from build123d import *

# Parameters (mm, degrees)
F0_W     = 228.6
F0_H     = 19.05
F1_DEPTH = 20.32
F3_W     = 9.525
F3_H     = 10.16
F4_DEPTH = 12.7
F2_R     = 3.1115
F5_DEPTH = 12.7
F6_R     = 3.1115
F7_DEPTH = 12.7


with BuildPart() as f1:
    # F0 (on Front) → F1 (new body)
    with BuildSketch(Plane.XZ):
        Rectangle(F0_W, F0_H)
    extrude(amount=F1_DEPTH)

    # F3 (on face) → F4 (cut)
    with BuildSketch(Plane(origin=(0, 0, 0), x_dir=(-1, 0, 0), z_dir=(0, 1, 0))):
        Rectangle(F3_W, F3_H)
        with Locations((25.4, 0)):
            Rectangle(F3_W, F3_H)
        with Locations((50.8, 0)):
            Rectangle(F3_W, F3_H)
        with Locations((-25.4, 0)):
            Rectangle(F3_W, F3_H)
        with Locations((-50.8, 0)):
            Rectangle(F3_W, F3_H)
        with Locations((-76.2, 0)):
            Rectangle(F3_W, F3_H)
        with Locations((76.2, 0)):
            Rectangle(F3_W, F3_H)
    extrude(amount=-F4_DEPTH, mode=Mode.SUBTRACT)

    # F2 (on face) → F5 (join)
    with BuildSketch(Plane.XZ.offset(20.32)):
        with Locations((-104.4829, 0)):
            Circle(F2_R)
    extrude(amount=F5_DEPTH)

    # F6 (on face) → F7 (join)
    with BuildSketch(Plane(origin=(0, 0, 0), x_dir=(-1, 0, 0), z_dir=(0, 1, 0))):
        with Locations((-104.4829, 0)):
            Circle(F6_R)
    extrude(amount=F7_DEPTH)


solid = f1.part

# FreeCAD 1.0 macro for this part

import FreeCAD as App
import Part
import Sketcher
from FreeCAD import Vector
Q = App.Units.Quantity

doc = App.newDocument("Part")
params = doc.addObject("Spreadsheet::Sheet", "Params")
for row, (alias, value) in enumerate([
    ("sketch1_width", "9 in"),
    ("sketch1_height", "0.75 in"),
    ("pad1_length", "0.8 in"),
    ("sketch2_height", "0.4 in"),
    ("sketch2_width", "0.375 in"),
    ("pocket1_length", "0.5 in"),
    ("sketch3_diameter", "0.245 in"),
    ("pad2_length", "0.5 in"),
    ("sketch4_diameter", "0.245 in"),
    ("pad3_length", "0.5 in"),
], start=1):
    params.set(f"A{row}", alias)
    params.set(f"B{row}", "=" + value)
    params.setAlias(f"B{row}", alias)

body = doc.addObject("PartDesign::Body", "Body")

sketch1 = body.newObject("Sketcher::SketchObject", "Sketch")
sketch1.AttachmentSupport = (doc.getObject("XZ_Plane"), [""])
sketch1.MapMode = "FlatFace"
sketch1.addGeometry(Part.LineSegment(Vector(-114, 10, 0), Vector(-114, -10, 0)), False)
sketch1.addGeometry(Part.LineSegment(Vector(-114, -10, 0), Vector(114, -10, 0)), False)
sketch1.addGeometry(Part.LineSegment(Vector(114, -10, 0), Vector(114, 10, 0)), False)
sketch1.addGeometry(Part.LineSegment(Vector(114, 10, 0), Vector(-114, 10, 0)), False)
sketch1.addConstraint(Sketcher.Constraint("Coincident", 0, 2, 1, 1))
sketch1.addConstraint(Sketcher.Constraint("Coincident", 1, 2, 2, 1))
sketch1.addConstraint(Sketcher.Constraint("Coincident", 2, 2, 3, 1))
sketch1.addConstraint(Sketcher.Constraint("Coincident", 3, 2, 0, 1))
sketch1.addConstraint(Sketcher.Constraint("Vertical", 0))
sketch1.addConstraint(Sketcher.Constraint("Horizontal", 1))
sketch1.addConstraint(Sketcher.Constraint("Vertical", 2))
sketch1.addConstraint(Sketcher.Constraint("Horizontal", 3))
sketch1.addConstraint(Sketcher.Constraint("Symmetric", 0, 2, 2, 2, -1, 1))
sketch1.addConstraint(Sketcher.Constraint("DistanceX", 1, 1, 1, 2, Q("9 in")))
sketch1.addConstraint(Sketcher.Constraint("DistanceY", 0, 2, 0, 1, Q("0.75 in")))
sketch1.setExpression("Constraints[9]", "Params.sketch1_width")
sketch1.setExpression("Constraints[10]", "Params.sketch1_height")
pad1 = body.newObject("PartDesign::Pad", "Pad")
pad1.Profile = sketch1
pad1.setExpression("Length", "Params.pad1_length")

sketch2 = body.newObject("Sketcher::SketchObject", "Sketch001")
sketch2.AttachmentSupport = (doc.getObject("XZ_Plane"), [""])
sketch2.MapMode = "FlatFace"
sketch2.addGeometry(Part.LineSegment(Vector(5, 5, 0), Vector(5, -5, 0)), False)
sketch2.addGeometry(Part.LineSegment(Vector(5, -5, 0), Vector(-5, -5, 0)), False)
sketch2.addGeometry(Part.LineSegment(Vector(-5, -5, 0), Vector(-5, 5, 0)), False)
sketch2.addGeometry(Part.LineSegment(Vector(-5, 5, 0), Vector(5, 5, 0)), False)
sketch2.addGeometry(Part.LineSegment(Vector(-21, 5, 0), Vector(-21, -5, 0)), False)
sketch2.addGeometry(Part.LineSegment(Vector(-21, -5, 0), Vector(-30, -5, 0)), False)
sketch2.addGeometry(Part.LineSegment(Vector(-30, -5, 0), Vector(-30, 5, 0)), False)
sketch2.addGeometry(Part.LineSegment(Vector(-30, 5, 0), Vector(-21, 5, 0)), False)
sketch2.addGeometry(Part.LineSegment(Vector(-46, 5, 0), Vector(-46, -5, 0)), False)
sketch2.addGeometry(Part.LineSegment(Vector(-46, -5, 0), Vector(-56, -5, 0)), False)
sketch2.addGeometry(Part.LineSegment(Vector(-56, -5, 0), Vector(-56, 5, 0)), False)
sketch2.addGeometry(Part.LineSegment(Vector(-56, 5, 0), Vector(-46, 5, 0)), False)
sketch2.addGeometry(Part.LineSegment(Vector(30, 5, 0), Vector(30, -5, 0)), False)
sketch2.addGeometry(Part.LineSegment(Vector(30, -5, 0), Vector(21, -5, 0)), False)
sketch2.addGeometry(Part.LineSegment(Vector(21, -5, 0), Vector(21, 5, 0)), False)
sketch2.addGeometry(Part.LineSegment(Vector(21, 5, 0), Vector(30, 5, 0)), False)
sketch2.addGeometry(Part.LineSegment(Vector(56, 5, 0), Vector(56, -5, 0)), False)
sketch2.addGeometry(Part.LineSegment(Vector(56, -5, 0), Vector(46, -5, 0)), False)
sketch2.addGeometry(Part.LineSegment(Vector(46, -5, 0), Vector(46, 5, 0)), False)
sketch2.addGeometry(Part.LineSegment(Vector(46, 5, 0), Vector(56, 5, 0)), False)
sketch2.addGeometry(Part.LineSegment(Vector(81, 5, 0), Vector(81, -5, 0)), False)
sketch2.addGeometry(Part.LineSegment(Vector(81, -5, 0), Vector(71, -5, 0)), False)
sketch2.addGeometry(Part.LineSegment(Vector(71, -5, 0), Vector(71, 5, 0)), False)
sketch2.addGeometry(Part.LineSegment(Vector(71, 5, 0), Vector(81, 5, 0)), False)
sketch2.addGeometry(Part.LineSegment(Vector(-71, 5, 0), Vector(-71, -5, 0)), False)
sketch2.addGeometry(Part.LineSegment(Vector(-71, -5, 0), Vector(-81, -5, 0)), False)
sketch2.addGeometry(Part.LineSegment(Vector(-81, -5, 0), Vector(-81, 5, 0)), False)
sketch2.addGeometry(Part.LineSegment(Vector(-81, 5, 0), Vector(-71, 5, 0)), False)
sketch2.addConstraint(Sketcher.Constraint("Coincident", 0, 2, 1, 1))
sketch2.addConstraint(Sketcher.Constraint("Coincident", 1, 2, 2, 1))
sketch2.addConstraint(Sketcher.Constraint("Coincident", 2, 2, 3, 1))
sketch2.addConstraint(Sketcher.Constraint("Coincident", 3, 2, 0, 1))
sketch2.addConstraint(Sketcher.Constraint("Coincident", 4, 2, 5, 1))
sketch2.addConstraint(Sketcher.Constraint("Coincident", 5, 2, 6, 1))
sketch2.addConstraint(Sketcher.Constraint("Coincident", 6, 2, 7, 1))
sketch2.addConstraint(Sketcher.Constraint("Coincident", 7, 2, 4, 1))
sketch2.addConstraint(Sketcher.Constraint("Coincident", 8, 2, 9, 1))
sketch2.addConstraint(Sketcher.Constraint("Coincident", 9, 2, 10, 1))
sketch2.addConstraint(Sketcher.Constraint("Coincident", 10, 2, 11, 1))
sketch2.addConstraint(Sketcher.Constraint("Coincident", 11, 2, 8, 1))
sketch2.addConstraint(Sketcher.Constraint("Coincident", 12, 2, 13, 1))
sketch2.addConstraint(Sketcher.Constraint("Coincident", 13, 2, 14, 1))
sketch2.addConstraint(Sketcher.Constraint("Coincident", 14, 2, 15, 1))
sketch2.addConstraint(Sketcher.Constraint("Coincident", 15, 2, 12, 1))
sketch2.addConstraint(Sketcher.Constraint("Coincident", 16, 2, 17, 1))
sketch2.addConstraint(Sketcher.Constraint("Coincident", 17, 2, 18, 1))
sketch2.addConstraint(Sketcher.Constraint("Coincident", 18, 2, 19, 1))
sketch2.addConstraint(Sketcher.Constraint("Coincident", 19, 2, 16, 1))
sketch2.addConstraint(Sketcher.Constraint("Coincident", 20, 2, 21, 1))
sketch2.addConstraint(Sketcher.Constraint("Coincident", 21, 2, 22, 1))
sketch2.addConstraint(Sketcher.Constraint("Coincident", 22, 2, 23, 1))
sketch2.addConstraint(Sketcher.Constraint("Coincident", 23, 2, 20, 1))
sketch2.addConstraint(Sketcher.Constraint("Coincident", 24, 2, 25, 1))
sketch2.addConstraint(Sketcher.Constraint("Coincident", 25, 2, 26, 1))
sketch2.addConstraint(Sketcher.Constraint("Coincident", 26, 2, 27, 1))
sketch2.addConstraint(Sketcher.Constraint("Coincident", 27, 2, 24, 1))
sketch2.addConstraint(Sketcher.Constraint("Vertical", 0))
sketch2.addConstraint(Sketcher.Constraint("Horizontal", 1))
sketch2.addConstraint(Sketcher.Constraint("Vertical", 2))
sketch2.addConstraint(Sketcher.Constraint("Horizontal", 3))
sketch2.addConstraint(Sketcher.Constraint("Vertical", 4))
sketch2.addConstraint(Sketcher.Constraint("Horizontal", 5))
sketch2.addConstraint(Sketcher.Constraint("Vertical", 6))
sketch2.addConstraint(Sketcher.Constraint("Horizontal", 7))
sketch2.addConstraint(Sketcher.Constraint("Vertical", 8))
sketch2.addConstraint(Sketcher.Constraint("Horizontal", 9))
sketch2.addConstraint(Sketcher.Constraint("Vertical", 10))
sketch2.addConstraint(Sketcher.Constraint("Horizontal", 11))
sketch2.addConstraint(Sketcher.Constraint("Vertical", 12))
sketch2.addConstraint(Sketcher.Constraint("Horizontal", 13))
sketch2.addConstraint(Sketcher.Constraint("Vertical", 14))
sketch2.addConstraint(Sketcher.Constraint("Horizontal", 15))
sketch2.addConstraint(Sketcher.Constraint("Vertical", 16))
sketch2.addConstraint(Sketcher.Constraint("Horizontal", 17))
sketch2.addConstraint(Sketcher.Constraint("Vertical", 18))
sketch2.addConstraint(Sketcher.Constraint("Horizontal", 19))
sketch2.addConstraint(Sketcher.Constraint("Vertical", 20))
sketch2.addConstraint(Sketcher.Constraint("Horizontal", 21))
sketch2.addConstraint(Sketcher.Constraint("Vertical", 22))
sketch2.addConstraint(Sketcher.Constraint("Horizontal", 23))
sketch2.addConstraint(Sketcher.Constraint("Vertical", 24))
sketch2.addConstraint(Sketcher.Constraint("Horizontal", 25))
sketch2.addConstraint(Sketcher.Constraint("Vertical", 26))
sketch2.addConstraint(Sketcher.Constraint("Horizontal", 27))
sketch2.addConstraint(Sketcher.Constraint("Symmetric", 0, 2, 2, 2, -1, 1))
sketch2.addConstraint(Sketcher.Constraint("Symmetric", 6, 2, 12, 2, -1, 1))
sketch2.addConstraint(Sketcher.Constraint("Symmetric", 4, 2, 14, 2, -1, 1))
sketch2.addConstraint(Sketcher.Constraint("Symmetric", 10, 2, 16, 2, -1, 1))
sketch2.addConstraint(Sketcher.Constraint("Symmetric", 8, 2, 18, 2, -1, 1))
sketch2.addConstraint(Sketcher.Constraint("Symmetric", 22, 2, 24, 2, -1, 1))
sketch2.addConstraint(Sketcher.Constraint("Symmetric", 20, 2, 26, 2, -1, 1))
sketch2.addConstraint(Sketcher.Constraint("Horizontal", 1, 2, 4, 2))
sketch2.addConstraint(Sketcher.Constraint("Horizontal", 3, 2, 6, 2))
sketch2.addConstraint(Sketcher.Constraint("Horizontal", 5, 2, 8, 2))
sketch2.addConstraint(Sketcher.Constraint("Horizontal", 7, 2, 10, 2))
sketch2.addConstraint(Sketcher.Constraint("Horizontal", 17, 2, 20, 2))
sketch2.addConstraint(Sketcher.Constraint("Horizontal", 19, 2, 22, 2))
sketch2.addConstraint(Sketcher.Constraint("Equal", 3, 5))
sketch2.addConstraint(Sketcher.Constraint("Equal", 7, 9))
sketch2.addConstraint(Sketcher.Constraint("Equal", 19, 21))
sketch2.addConstraint(Sketcher.Constraint("DistanceY", 0, 2, 0, 1, Q("0.4 in")))
sketch2.addConstraint(Sketcher.Constraint("DistanceX", 4, 2, 0, 2, Q("1 in")))
sketch2.addConstraint(Sketcher.Constraint("DistanceX", 8, 2, 4, 2, Q("1 in")))
sketch2.addConstraint(Sketcher.Constraint("DistanceX", 16, 2, 20, 2, Q("1 in")))
sketch2.addConstraint(Sketcher.Constraint("DistanceX", 1, 2, 1, 1, Q("0.375 in")))
sketch2.setExpression("Constraints[72]", "Params.sketch2_height")
sketch2.setExpression("Constraints[76]", "Params.sketch2_width")
pocket1 = body.newObject("PartDesign::Pocket", "Pocket")
pocket1.Profile = sketch2
pocket1.setExpression("Length", "Params.pocket1_length")
pocket1.Reversed = True

sketch3 = body.newObject("Sketcher::SketchObject", "Sketch002")
sketch3.AttachmentSupport = (doc.getObject("XZ_Plane"), [""])
sketch3.MapMode = "FlatFace"
sketch3.AttachmentOffset = App.Placement(Vector(0, 0, 0.8 * 25.4), App.Rotation())
sketch3.addGeometry(Part.Circle(Vector(-104.5, 0, 0), Vector(0, 0, 1), 3.1), False)
sketch3.addConstraint(Sketcher.Constraint("PointOnObject", 0, 3, -1))
sketch3.addConstraint(Sketcher.Constraint("Diameter", 0, Q("0.245 in")))
sketch3.addConstraint(Sketcher.Constraint("DistanceX", 0, 3, -1, 1, Q("4.1135 in")))
sketch3.setExpression("Constraints[1]", "Params.sketch3_diameter")
pad2 = body.newObject("PartDesign::Pad", "Pad001")
pad2.Profile = sketch3
pad2.setExpression("Length", "Params.pad2_length")

sketch4 = body.newObject("Sketcher::SketchObject", "Sketch003")
sketch4.AttachmentSupport = (doc.getObject("XZ_Plane"), [""])
sketch4.MapMode = "FlatFace"
sketch4.addGeometry(Part.Circle(Vector(104.5, 0, 0), Vector(0, 0, 1), 3.1), False)
sketch4.addConstraint(Sketcher.Constraint("PointOnObject", 0, 3, -1))
sketch4.addConstraint(Sketcher.Constraint("Diameter", 0, Q("0.245 in")))
sketch4.addConstraint(Sketcher.Constraint("DistanceX", -1, 1, 0, 3, Q("4.1135 in")))
sketch4.setExpression("Constraints[1]", "Params.sketch4_diameter")
pad3 = body.newObject("PartDesign::Pad", "Pad002")
pad3.Profile = sketch4
pad3.setExpression("Length", "Params.pad3_length")
pad3.Reversed = True

doc.recompute()
